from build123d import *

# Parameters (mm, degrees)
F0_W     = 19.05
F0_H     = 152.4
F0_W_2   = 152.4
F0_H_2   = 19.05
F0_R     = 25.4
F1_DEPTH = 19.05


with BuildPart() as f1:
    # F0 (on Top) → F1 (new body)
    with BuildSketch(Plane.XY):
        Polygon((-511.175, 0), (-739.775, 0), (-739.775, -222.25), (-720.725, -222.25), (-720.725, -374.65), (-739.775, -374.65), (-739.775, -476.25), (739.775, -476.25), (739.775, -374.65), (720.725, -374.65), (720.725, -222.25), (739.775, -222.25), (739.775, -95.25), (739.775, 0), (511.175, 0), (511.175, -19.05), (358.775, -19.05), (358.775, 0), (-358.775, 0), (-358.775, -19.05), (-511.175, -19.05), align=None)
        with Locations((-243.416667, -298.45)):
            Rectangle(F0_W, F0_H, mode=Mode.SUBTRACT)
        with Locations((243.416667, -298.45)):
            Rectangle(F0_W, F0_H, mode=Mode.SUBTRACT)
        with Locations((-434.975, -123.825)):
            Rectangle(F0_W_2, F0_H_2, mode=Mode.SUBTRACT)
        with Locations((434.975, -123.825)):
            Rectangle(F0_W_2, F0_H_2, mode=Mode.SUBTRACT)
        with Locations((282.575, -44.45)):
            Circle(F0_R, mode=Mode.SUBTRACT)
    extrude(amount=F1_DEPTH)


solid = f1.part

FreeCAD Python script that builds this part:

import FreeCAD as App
import Part
import Sketcher

V = App.Vector
Q = App.Units.Quantity

doc = App.newDocument("Part")
body = doc.addObject("PartDesign::Body", "Body")

# Sketch on XY plane
sketch1 = body.newObject("Sketcher::SketchObject", "Sketch")
sketch1.AttachmentSupport = (doc.getObject("XY_Plane"), [""])
sketch1.MapMode = "FlatFace"
sketch1.addGeometry([
    Part.LineSegment(V(-511, 0, 0), V(-740, 0, 0)),  # 0
    Part.LineSegment(V(-740, 0, 0), V(-740, -222, 0)),  # 1
    Part.LineSegment(V(-740, -222, 0), V(-721, -222, 0)),  # 2
    Part.LineSegment(V(-721, -222, 0), V(-721, -375, 0)),  # 3
    Part.LineSegment(V(-721, -375, 0), V(-740, -375, 0)),  # 4
    Part.LineSegment(V(-740, -375, 0), V(-740, -476, 0)),  # 5
    Part.LineSegment(V(-740, -476, 0), V(740, -476, 0)),  # 6
    Part.LineSegment(V(740, -476, 0), V(740, -375, 0)),  # 7
    Part.LineSegment(V(740, -375, 0), V(721, -375, 0)),  # 8
    Part.LineSegment(V(721, -375, 0), V(721, -222, 0)),  # 9
    Part.LineSegment(V(721, -222, 0), V(740, -222, 0)),  # 10
    Part.LineSegment(V(740, -222, 0), V(740, 0, 0)),  # 11
    Part.LineSegment(V(740, 0, 0), V(511, 0, 0)),  # 12
    Part.LineSegment(V(511, 0, 0), V(511, -19, 0)),  # 13
    Part.LineSegment(V(511, -19, 0), V(359, -19, 0)),  # 14
    Part.LineSegment(V(359, -19, 0), V(359, 0, 0)),  # 15
    Part.LineSegment(V(359, 0, 0), V(-359, 0, 0)),  # 16
    Part.LineSegment(V(-359, 0, 0), V(-359, -19, 0)),  # 17
    Part.LineSegment(V(-359, -19, 0), V(-511, -19, 0)),  # 18
    Part.LineSegment(V(-511, -19, 0), V(-511, 0, 0)),  # 19
    Part.LineSegment(V(-234, -375, 0), V(-253, -375, 0)),  # 20
    Part.LineSegment(V(-253, -375, 0), V(-253, -222, 0)),  # 21
    Part.LineSegment(V(-253, -222, 0), V(-234, -222, 0)),  # 22
    Part.LineSegment(V(-234, -222, 0), V(-234, -375, 0)),  # 23
    Part.LineSegment(V(253, -375, 0), V(234, -375, 0)),  # 24
    Part.LineSegment(V(234, -375, 0), V(234, -222, 0)),  # 25
    Part.LineSegment(V(234, -222, 0), V(253, -222, 0)),  # 26
    Part.LineSegment(V(253, -222, 0), V(253, -375, 0)),  # 27
    Part.LineSegment(V(-359, -133, 0), V(-511, -133, 0)),  # 28
    Part.LineSegment(V(-511, -133, 0), V(-511, -114, 0)),  # 29
    Part.LineSegment(V(-511, -114, 0), V(-359, -114, 0)),  # 30
    Part.LineSegment(V(-359, -114, 0), V(-359, -133, 0)),  # 31
    Part.LineSegment(V(511, -133, 0), V(359, -133, 0)),  # 32
    Part.LineSegment(V(359, -133, 0), V(359, -114, 0)),  # 33
    Part.LineSegment(V(359, -114, 0), V(511, -114, 0)),  # 34
    Part.LineSegment(V(511, -114, 0), V(511, -133, 0)),  # 35
    Part.Circle(V(283, -44, 0), V(0, 0, 1), 25),  # 36
], False)
sketch1.addConstraint([
    Sketcher.Constraint("Coincident", 0, 2, 1, 1),
    Sketcher.Constraint("Coincident", 1, 2, 2, 1),
    Sketcher.Constraint("Coincident", 2, 2, 3, 1),
    Sketcher.Constraint("Coincident", 3, 2, 4, 1),
    Sketcher.Constraint("Coincident", 4, 2, 5, 1),
    Sketcher.Constraint("Coincident", 5, 2, 6, 1),
    Sketcher.Constraint("Coincident", 6, 2, 7, 1),
    Sketcher.Constraint("Coincident", 7, 2, 8, 1),
    Sketcher.Constraint("Coincident", 8, 2, 9, 1),
    Sketcher.Constraint("Coincident", 9, 2, 10, 1),
    Sketcher.Constraint("Coincident", 10, 2, 11, 1),
    Sketcher.Constraint("Coincident", 11, 2, 12, 1),
    Sketcher.Constraint("Coincident", 12, 2, 13, 1),
    Sketcher.Constraint("Coincident", 13, 2, 14, 1),
    Sketcher.Constraint("Coincident", 14, 2, 15, 1),
    Sketcher.Constraint("Coincident", 15, 2, 16, 1),
    Sketcher.Constraint("Coincident", 16, 2, 17, 1),
    Sketcher.Constraint("Coincident", 17, 2, 18, 1),
    Sketcher.Constraint("Coincident", 18, 2, 19, 1),
    Sketcher.Constraint("Coincident", 19, 2, 0, 1),
    Sketcher.Constraint("Coincident", 20, 2, 21, 1),
    Sketcher.Constraint("Coincident", 21, 2, 22, 1),
    Sketcher.Constraint("Coincident", 22, 2, 23, 1),
    Sketcher.Constraint("Coincident", 23, 2, 20, 1),
    Sketcher.Constraint("Coincident", 24, 2, 25, 1),
    Sketcher.Constraint("Coincident", 25, 2, 26, 1),
    Sketcher.Constraint("Coincident", 26, 2, 27, 1),
    Sketcher.Constraint("Coincident", 27, 2, 24, 1),
    Sketcher.Constraint("Coincident", 28, 2, 29, 1),
    Sketcher.Constraint("Coincident", 29, 2, 30, 1),
    Sketcher.Constraint("Coincident", 30, 2, 31, 1),
    Sketcher.Constraint("Coincident", 31, 2, 28, 1),
    Sketcher.Constraint("Coincident", 32, 2, 33, 1),
    Sketcher.Constraint("Coincident", 33, 2, 34, 1),
    Sketcher.Constraint("Coincident", 34, 2, 35, 1),
    Sketcher.Constraint("Coincident", 35, 2, 32, 1),
    Sketcher.Constraint("Horizontal", 0),
    Sketcher.Constraint("Vertical", 1),
    Sketcher.Constraint("Horizontal", 2),
    Sketcher.Constraint("Vertical", 3),
    Sketcher.Constraint("Horizontal", 4),
    Sketcher.Constraint("Vertical", 5),
    Sketcher.Constraint("Horizontal", 6),
    Sketcher.Constraint("Vertical", 7),
    Sketcher.Constraint("Horizontal", 8),
    Sketcher.Constraint("Vertical", 9),
    Sketcher.Constraint("Horizontal", 10),
    Sketcher.Constraint("Vertical", 11),
    Sketcher.Constraint("Horizontal", 12),
    Sketcher.Constraint("Vertical", 13),
    Sketcher.Constraint("Horizontal", 14),
    Sketcher.Constraint("Vertical", 15),
    Sketcher.Constraint("Horizontal", 16),
    Sketcher.Constraint("Vertical", 17),
    Sketcher.Constraint("Horizontal", 18),
    Sketcher.Constraint("Vertical", 19),
    Sketcher.Constraint("Horizontal", 20),
    Sketcher.Constraint("Vertical", 21),
    Sketcher.Constraint("Horizontal", 22),
    Sketcher.Constraint("Vertical", 23),
    Sketcher.Constraint("Horizontal", 24),
    Sketcher.Constraint("Vertical", 25),
    Sketcher.Constraint("Horizontal", 26),
    Sketcher.Constraint("Vertical", 27),
    Sketcher.Constraint("Horizontal", 28),
    Sketcher.Constraint("Vertical", 29),
    Sketcher.Constraint("Horizontal", 30),
    Sketcher.Constraint("Vertical", 31),
    Sketcher.Constraint("Horizontal", 32),
    Sketcher.Constraint("Vertical", 33),
    Sketcher.Constraint("Horizontal", 34),
    Sketcher.Constraint("Vertical", 35),
    Sketcher.Constraint("Symmetric", 0, 2, 11, 2, -1, 1),
    Sketcher.Constraint("Symmetric", 15, 2, 16, 2, -1, 1),
    Sketcher.Constraint("Symmetric", 4, 2, 7, 2, -2),
    Sketcher.Constraint("Symmetric", 2, 2, 9, 2, -2),
    Sketcher.Constraint("Symmetric", 13, 2, 18, 2, -2),
    Sketcher.Constraint("Symmetric", 23, 2, 24, 2, -2),
    Sketcher.Constraint("Symmetric", 21, 2, 26, 2, -2),
    Sketcher.Constraint("Symmetric", 31, 2, 32, 2, -2),
    Sketcher.Constraint("Symmetric", 29, 2, 34, 2, -2),
    Sketcher.Constraint("PointOnObject", 0, 2, -1),
    Sketcher.Constraint("Horizontal", 8, 2, 20, 2),
    Sketcher.Constraint("Horizontal", 10, 2, 21, 2),
    Sketcher.Constraint("Vertical", 1, 2, 4, 2),
    Sketcher.Constraint("Vertical", 19, 2, 28, 2),
    Sketcher.Constraint("Vertical", 17, 2, 30, 2),
    Sketcher.Constraint("Equal", 10, 20),
    Sketcher.Constraint("Equal", 34, 3),
    Sketcher.Constraint("Equal", 26, 13),
    Sketcher.Constraint("Equal", 19, 29),
    Sketcher.Constraint("Diameter", 36, Q("2 in")),
    Sketcher.Constraint("DistanceX", 0, 2, 0, 1, Q("9 in")),
    Sketcher.Constraint("DistanceX", 14, 2, 14, 1, Q("6 in")),
    Sketcher.Constraint("DistanceY", 5, 2, 5, 1, Q("4 in")),
    Sketcher.Constraint("DistanceY", 1, 2, 36, 3, Q("7 in")),
    Sketcher.Constraint("DistanceX", 36, 3, 6, 2, Q("18 in")),
    Sketcher.Constraint("DistanceY", 36, 3, 13, 2, Q("1 in")),
    Sketcher.Constraint("DistanceX", 2, 1, 2, 2, Q("0.75 in")),
    Sketcher.Constraint("DistanceX", 6, 1, 6, 2, Q("58.25 in")),
    Sketcher.Constraint("DistanceY", 29, 2, -1, 1, Q("4.5 in")),
    Sketcher.Constraint("DistanceX", 20, 2, -1, 1, Q("252.941667 mm")),
])
pad1 = body.newObject("PartDesign::Pad", "Pad")
pad1.Profile = sketch1
pad1.Length = Q("0.75 in")

doc.recompute()
